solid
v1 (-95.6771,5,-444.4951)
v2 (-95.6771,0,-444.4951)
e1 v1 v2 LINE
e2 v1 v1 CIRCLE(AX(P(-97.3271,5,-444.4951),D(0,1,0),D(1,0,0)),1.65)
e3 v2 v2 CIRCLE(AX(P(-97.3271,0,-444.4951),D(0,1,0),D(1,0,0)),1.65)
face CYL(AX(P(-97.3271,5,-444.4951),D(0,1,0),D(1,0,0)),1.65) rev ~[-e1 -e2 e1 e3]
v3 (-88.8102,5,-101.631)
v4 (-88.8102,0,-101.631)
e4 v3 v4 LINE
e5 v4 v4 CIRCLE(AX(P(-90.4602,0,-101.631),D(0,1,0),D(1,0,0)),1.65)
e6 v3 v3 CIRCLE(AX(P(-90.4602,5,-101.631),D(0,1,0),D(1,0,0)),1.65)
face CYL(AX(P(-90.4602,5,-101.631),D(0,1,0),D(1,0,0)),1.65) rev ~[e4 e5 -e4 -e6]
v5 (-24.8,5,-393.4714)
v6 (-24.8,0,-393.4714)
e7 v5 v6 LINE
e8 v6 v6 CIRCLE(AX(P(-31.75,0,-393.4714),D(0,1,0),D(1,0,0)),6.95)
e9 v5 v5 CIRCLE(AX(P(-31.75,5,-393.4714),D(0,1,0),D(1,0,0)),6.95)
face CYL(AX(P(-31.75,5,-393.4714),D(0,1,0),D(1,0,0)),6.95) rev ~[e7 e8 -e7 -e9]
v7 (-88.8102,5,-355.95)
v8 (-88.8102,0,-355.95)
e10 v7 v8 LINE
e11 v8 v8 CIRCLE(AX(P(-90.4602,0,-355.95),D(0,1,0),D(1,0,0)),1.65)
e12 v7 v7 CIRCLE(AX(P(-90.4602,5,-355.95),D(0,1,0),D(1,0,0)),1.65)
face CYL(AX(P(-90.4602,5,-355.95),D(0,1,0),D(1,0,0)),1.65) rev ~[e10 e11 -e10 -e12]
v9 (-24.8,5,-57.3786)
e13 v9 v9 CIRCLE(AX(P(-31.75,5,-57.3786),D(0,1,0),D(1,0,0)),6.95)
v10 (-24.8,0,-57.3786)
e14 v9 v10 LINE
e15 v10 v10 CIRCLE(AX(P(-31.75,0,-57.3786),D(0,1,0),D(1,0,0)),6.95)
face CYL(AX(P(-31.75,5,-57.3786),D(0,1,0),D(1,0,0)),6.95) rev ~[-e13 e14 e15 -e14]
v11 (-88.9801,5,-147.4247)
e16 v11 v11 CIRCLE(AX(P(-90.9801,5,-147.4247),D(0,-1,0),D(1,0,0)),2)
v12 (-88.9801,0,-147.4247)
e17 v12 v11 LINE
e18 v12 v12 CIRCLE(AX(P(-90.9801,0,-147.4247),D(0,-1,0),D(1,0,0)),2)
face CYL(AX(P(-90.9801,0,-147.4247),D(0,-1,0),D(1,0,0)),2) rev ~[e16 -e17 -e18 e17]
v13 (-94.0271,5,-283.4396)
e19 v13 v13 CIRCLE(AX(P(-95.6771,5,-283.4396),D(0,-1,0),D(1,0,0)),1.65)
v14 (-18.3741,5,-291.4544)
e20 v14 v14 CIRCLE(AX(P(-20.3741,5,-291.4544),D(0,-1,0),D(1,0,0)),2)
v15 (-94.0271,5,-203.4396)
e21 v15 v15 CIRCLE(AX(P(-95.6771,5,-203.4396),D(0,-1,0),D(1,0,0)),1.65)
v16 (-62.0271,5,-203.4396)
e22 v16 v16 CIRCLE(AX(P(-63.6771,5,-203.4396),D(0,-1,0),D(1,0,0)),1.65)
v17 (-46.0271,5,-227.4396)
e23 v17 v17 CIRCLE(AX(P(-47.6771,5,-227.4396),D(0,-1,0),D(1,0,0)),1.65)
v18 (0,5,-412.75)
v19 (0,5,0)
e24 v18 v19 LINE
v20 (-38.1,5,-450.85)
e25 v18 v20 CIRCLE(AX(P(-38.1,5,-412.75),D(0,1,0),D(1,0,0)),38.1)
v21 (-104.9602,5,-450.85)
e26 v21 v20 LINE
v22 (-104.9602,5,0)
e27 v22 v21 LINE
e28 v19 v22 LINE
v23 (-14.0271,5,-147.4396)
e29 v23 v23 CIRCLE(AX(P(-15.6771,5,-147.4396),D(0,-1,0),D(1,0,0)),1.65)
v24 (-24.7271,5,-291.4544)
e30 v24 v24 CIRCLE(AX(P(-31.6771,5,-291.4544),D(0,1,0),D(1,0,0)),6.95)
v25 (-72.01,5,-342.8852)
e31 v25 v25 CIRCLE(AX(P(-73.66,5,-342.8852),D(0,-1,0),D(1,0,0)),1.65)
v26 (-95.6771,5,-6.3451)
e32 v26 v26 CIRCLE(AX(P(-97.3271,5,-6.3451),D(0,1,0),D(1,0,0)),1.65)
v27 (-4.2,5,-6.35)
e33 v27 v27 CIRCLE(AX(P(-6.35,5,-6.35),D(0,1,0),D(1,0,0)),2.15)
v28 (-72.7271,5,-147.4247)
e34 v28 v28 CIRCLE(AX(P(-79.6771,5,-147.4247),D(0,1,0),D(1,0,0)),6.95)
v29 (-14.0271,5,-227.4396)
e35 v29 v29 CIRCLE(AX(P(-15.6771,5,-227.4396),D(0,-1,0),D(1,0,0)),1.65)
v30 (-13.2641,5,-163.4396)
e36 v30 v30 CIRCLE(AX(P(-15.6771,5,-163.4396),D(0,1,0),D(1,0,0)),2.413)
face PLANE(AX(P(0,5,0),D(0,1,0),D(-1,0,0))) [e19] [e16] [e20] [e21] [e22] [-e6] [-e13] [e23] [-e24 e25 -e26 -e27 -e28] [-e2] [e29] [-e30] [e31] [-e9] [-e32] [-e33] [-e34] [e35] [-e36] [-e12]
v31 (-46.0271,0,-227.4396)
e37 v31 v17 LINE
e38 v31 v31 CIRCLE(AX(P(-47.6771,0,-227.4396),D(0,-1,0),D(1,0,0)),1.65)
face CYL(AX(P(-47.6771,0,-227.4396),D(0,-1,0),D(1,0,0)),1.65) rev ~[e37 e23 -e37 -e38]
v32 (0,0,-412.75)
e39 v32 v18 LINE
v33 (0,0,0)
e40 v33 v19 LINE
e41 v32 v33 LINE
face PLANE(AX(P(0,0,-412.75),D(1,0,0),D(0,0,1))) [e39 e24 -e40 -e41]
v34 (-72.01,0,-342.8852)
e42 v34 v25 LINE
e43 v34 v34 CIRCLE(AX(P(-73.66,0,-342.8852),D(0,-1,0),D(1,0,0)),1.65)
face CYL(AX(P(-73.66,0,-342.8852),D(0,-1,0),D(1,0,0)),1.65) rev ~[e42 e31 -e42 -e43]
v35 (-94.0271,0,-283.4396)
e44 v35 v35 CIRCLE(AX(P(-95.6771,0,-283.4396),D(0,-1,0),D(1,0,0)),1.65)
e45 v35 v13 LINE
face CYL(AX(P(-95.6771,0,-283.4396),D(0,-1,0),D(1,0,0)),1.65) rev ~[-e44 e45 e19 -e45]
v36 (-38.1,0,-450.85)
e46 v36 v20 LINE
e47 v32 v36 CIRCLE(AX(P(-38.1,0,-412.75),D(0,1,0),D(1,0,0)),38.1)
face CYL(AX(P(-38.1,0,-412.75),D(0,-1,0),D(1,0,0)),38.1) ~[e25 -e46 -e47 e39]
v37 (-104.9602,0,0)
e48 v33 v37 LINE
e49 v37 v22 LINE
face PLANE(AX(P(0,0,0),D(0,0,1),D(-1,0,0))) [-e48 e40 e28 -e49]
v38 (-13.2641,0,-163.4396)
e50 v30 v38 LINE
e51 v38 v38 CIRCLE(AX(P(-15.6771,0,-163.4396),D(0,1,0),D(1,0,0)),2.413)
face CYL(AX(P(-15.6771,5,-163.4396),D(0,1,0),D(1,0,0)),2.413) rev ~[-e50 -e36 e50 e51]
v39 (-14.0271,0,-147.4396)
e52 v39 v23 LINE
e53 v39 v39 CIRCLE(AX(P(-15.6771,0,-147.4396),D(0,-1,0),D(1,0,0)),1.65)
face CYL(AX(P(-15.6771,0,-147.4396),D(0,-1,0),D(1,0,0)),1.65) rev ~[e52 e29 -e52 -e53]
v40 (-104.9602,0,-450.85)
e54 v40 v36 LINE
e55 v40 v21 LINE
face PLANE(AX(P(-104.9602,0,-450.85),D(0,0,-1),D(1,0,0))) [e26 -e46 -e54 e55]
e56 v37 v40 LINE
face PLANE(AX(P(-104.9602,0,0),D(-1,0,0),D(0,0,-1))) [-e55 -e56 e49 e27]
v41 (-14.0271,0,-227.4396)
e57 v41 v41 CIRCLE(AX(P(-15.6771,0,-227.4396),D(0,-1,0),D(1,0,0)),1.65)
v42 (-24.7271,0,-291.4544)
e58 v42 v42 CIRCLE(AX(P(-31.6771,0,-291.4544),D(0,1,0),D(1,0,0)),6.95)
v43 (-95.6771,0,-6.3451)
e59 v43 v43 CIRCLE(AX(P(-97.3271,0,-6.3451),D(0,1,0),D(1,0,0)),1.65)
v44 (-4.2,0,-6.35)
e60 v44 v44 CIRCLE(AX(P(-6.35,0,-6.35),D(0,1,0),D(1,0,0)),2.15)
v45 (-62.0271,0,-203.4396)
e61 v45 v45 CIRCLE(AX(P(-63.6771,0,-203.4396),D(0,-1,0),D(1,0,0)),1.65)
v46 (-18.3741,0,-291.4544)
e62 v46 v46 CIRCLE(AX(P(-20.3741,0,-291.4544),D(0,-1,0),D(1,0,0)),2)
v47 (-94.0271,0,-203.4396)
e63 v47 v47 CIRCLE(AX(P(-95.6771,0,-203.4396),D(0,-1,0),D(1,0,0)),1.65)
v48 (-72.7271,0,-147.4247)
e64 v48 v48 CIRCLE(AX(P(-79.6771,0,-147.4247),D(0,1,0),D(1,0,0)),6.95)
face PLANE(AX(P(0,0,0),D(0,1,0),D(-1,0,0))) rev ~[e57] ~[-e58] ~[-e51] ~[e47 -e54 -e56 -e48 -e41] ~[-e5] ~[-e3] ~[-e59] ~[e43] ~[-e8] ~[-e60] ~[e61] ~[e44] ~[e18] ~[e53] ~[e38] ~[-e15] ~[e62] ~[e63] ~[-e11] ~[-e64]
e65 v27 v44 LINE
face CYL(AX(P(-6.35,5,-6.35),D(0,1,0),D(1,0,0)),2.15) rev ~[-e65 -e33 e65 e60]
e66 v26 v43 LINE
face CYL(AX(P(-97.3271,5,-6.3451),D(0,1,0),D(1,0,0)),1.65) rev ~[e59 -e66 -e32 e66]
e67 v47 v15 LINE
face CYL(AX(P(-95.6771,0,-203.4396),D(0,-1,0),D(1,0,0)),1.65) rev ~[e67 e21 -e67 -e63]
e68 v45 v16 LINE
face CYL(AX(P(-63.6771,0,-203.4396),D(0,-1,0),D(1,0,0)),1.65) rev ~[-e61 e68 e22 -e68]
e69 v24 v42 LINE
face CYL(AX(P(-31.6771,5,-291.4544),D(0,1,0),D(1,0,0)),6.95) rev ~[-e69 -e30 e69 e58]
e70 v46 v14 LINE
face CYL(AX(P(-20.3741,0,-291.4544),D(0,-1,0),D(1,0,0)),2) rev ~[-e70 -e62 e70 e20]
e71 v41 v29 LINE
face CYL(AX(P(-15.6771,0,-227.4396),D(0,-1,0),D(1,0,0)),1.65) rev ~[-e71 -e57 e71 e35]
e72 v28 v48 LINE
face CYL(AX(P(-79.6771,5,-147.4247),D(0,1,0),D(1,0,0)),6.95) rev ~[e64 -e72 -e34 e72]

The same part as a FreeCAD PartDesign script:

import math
import FreeCAD as App
import Part
import Sketcher

V = App.Vector

doc = App.newDocument("Part")
body = doc.addObject("PartDesign::Body", "Body")

sketch1 = body.newObject("Sketcher::SketchObject", "Sketch")
sketch1.AttachmentSupport = (doc.getObject("XZ_Plane"), [""])
sketch1.MapMode = "FlatFace"
sketch1.addGeometry([
    Part.LineSegment(V(-105, 0, 0), V(0, 0, 0)),
    Part.LineSegment(V(0, 0, 0), V(0, -413, 0)),
    Part.ArcOfCircle(Part.Circle(V(-38, -413, 0), V(0, 0, 1), 38), math.radians(-90), math.radians(0)),
    Part.LineSegment(V(-38, -451, 0), V(-105, -451, 0)),
    Part.LineSegment(V(-105, -451, 0), V(-105, 0, 0)),
], False)
sketch1.addConstraint([
    Sketcher.Constraint("Coincident", 0, 2, 1, 1),
    Sketcher.Constraint("Tangent", 1, 2, 2, 2),
    Sketcher.Constraint("Tangent", 2, 1, 3, 1),
    Sketcher.Constraint("Coincident", 3, 2, 4, 1),
    Sketcher.Constraint("Coincident", 4, 2, 0, 1),
    Sketcher.Constraint("Horizontal", 0),
    Sketcher.Constraint("Vertical", 1),
    Sketcher.Constraint("Horizontal", 3),
    Sketcher.Constraint("Vertical", 4),
    Sketcher.Constraint("Coincident", 0, 2, -1, 1),
    Sketcher.Constraint("Radius", 2, 38.1),
    Sketcher.Constraint("DistanceY", 4, 1, 4, 2, 450.85),
    Sketcher.Constraint("DistanceX", 0, 1, 0, 2, 104.9602),
])
pad1 = body.newObject("PartDesign::Pad", "Pad")
pad1.Profile = sketch1
pad1.Length = 5
pad1.Reversed = True

sketch2 = body.newObject("Sketcher::SketchObject", "Sketch001")
sketch2.AttachmentSupport = (doc.getObject("XZ_Plane"), [""])
sketch2.MapMode = "FlatFace"
sketch2.AttachmentOffset = App.Placement(V(0, 0, -5), App.Rotation())
sketch2.addGeometry([
    Part.Circle(V(-31.8, -57.4, 0), V(0, 0, 1), 7),
    Part.Circle(V(-31.8, -393.5, 0), V(0, 0, 1), 7),
    Part.Circle(V(-6.3, -6.3, 0), V(0, 0, 1), 2.1),
], False)
sketch2.addConstraint([
    Sketcher.Constraint("Equal", 0, 1),
    Sketcher.Constraint("Vertical", 0, 3, 1, 3),
    Sketcher.Constraint("Diameter", 0, 13.9),
    Sketcher.Constraint("Diameter", 2, 4.3),
    Sketcher.Constraint("DistanceX", 0, 3, -1, 1, 31.75),
    Sketcher.Constraint("DistanceX", 2, 3, -1, 1, 6.35),
    Sketcher.Constraint("DistanceY", 2, 3, -1, 1, 6.35),
    Sketcher.Constraint("DistanceY", 0, 3, -1, 1, 57.3786),
    Sketcher.Constraint("DistanceY", 1, 3, 0, 3, 336.0928),
])
pocket1 = body.newObject("PartDesign::Pocket", "Pocket")
pocket1.Profile = sketch2
pocket1.Type = "ThroughAll"
pocket1.Reversed = True

sketch3 = body.newObject("Sketcher::SketchObject", "Sketch002")
sketch3.AttachmentSupport = (doc.getObject("XZ_Plane"), [""])
sketch3.MapMode = "FlatFace"
sketch3.AttachmentOffset = App.Placement(V(0, 0, -5), App.Rotation())
sketch3.addGeometry([
    Part.Circle(V(-97.3, -6.3, 0), V(0, 0, 1), 1.6),
    Part.Circle(V(-97.3, -444.5, 0), V(0, 0, 1), 1.6),
    Part.Circle(V(-79.7, -147.4, 0), V(0, 0, 1), 7),
    Part.Circle(V(-31.7, -291.5, 0), V(0, 0, 1), 7),
    Part.Circle(V(-15.7, -163.4, 0), V(0, 0, 1), 2.4),
    Part.Circle(V(-90.5, -355.9, 0), V(0, 0, 1), 1.6),
    Part.Circle(V(-90.5, -101.6, 0), V(0, 0, 1), 1.6),
], False)
sketch3.addConstraint([
    Sketcher.Constraint("Equal", 0, 1),
    Sketcher.Constraint("Equal", 2, 3),
    Sketcher.Constraint("Equal", 1, 5),
    Sketcher.Constraint("Equal", 5, 6),
    Sketcher.Constraint("Vertical", 0, 3, 1, 3),
    Sketcher.Constraint("Vertical", 5, 3, 6, 3),
    Sketcher.Constraint("Diameter", 0, 3.3),
    Sketcher.Constraint("Diameter", 2, 13.9),
    Sketcher.Constraint("Diameter", 4, 4.826),
    Sketcher.Constraint("DistanceX", 2, 3, 3, 3, 48.0),
    Sketcher.Constraint("DistanceX", 2, 3, 4, 3, 64.0),
    Sketcher.Constraint("DistanceY", 5, 3, -1, 1, 355.95),
    Sketcher.Constraint("DistanceY", 1, 3, 0, 3, 438.15),
    Sketcher.Constraint("DistanceX", 0, 3, 2, 3, 17.65),
    Sketcher.Constraint("DistanceX", 0, 3, -1, 1, 97.327),
    Sketcher.Constraint("DistanceY", 0, 3, -1, 1, 6.345),
    Sketcher.Constraint("DistanceY", 6, 3, -1, 1, 101.631),
    Sketcher.Constraint("DistanceY", 4, 3, 2, 3, 16.015),
    Sketcher.Constraint("DistanceX", 5, 3, 3, 3, 58.783),
    Sketcher.Constraint("DistanceY", 2, 3, -1, 1, 147.4247),
    Sketcher.Constraint("DistanceY", 3, 3, -1, 1, 291.4544),
])
pocket2 = body.newObject("PartDesign::Pocket", "Pocket001")
pocket2.Profile = sketch3
pocket2.Type = "ThroughAll"
pocket2.Reversed = True

sketch4 = body.newObject("Sketcher::SketchObject", "Sketch003")
sketch4.AttachmentSupport = (doc.getObject("XZ_Plane"), [""])
sketch4.MapMode = "FlatFace"
sketch4.addGeometry([
    Part.Circle(V(-73.7, -342.9, 0), V(0, 0, 1), 1.6),
    Part.Circle(V(-95.7, -283.4, 0), V(0, 0, 1), 1.6),
    Part.Circle(V(-47.7, -227.4, 0), V(0, 0, 1), 1.6),
    Part.Circle(V(-15.7, -227.4, 0), V(0, 0, 1), 1.6),
    Part.Circle(V(-95.7, -203.4, 0), V(0, 0, 1), 1.6),
    Part.Circle(V(-63.7, -203.4, 0), V(0, 0, 1), 1.6),
    Part.Circle(V(-15.7, -147.4, 0), V(0, 0, 1), 1.6),
], False)
sketch4.addConstraint([
    Sketcher.Constraint("Equal", 0, 1),
    Sketcher.Constraint("Equal", 1, 2),
    Sketcher.Constraint("Equal", 2, 3),
    Sketcher.Constraint("Equal", 3, 4),
    Sketcher.Constraint("Equal", 4, 5),
    Sketcher.Constraint("Equal", 5, 6),
    Sketcher.Constraint("Horizontal", 2, 3, 3, 3),
    Sketcher.Constraint("Horizontal", 4, 3, 5, 3),
    Sketcher.Constraint("Vertical", 1, 3, 4, 3),
    Sketcher.Constraint("Vertical", 3, 3, 6, 3),
    Sketcher.Constraint("Diameter", 0, 3.3),
    Sketcher.Constraint("DistanceX", 1, 3, 2, 3, 48.0),
    Sketcher.Constraint("DistanceY", 1, 3, 2, 3, 56.0),
    Sketcher.Constraint("DistanceX", 2, 3, 3, 3, 32.0),
    Sketcher.Constraint("DistanceY", 2, 3, 4, 3, 24.0),
    Sketcher.Constraint("DistanceX", 5, 3, 2, 3, 16.0),
    Sketcher.Constraint("DistanceY", 5, 3, 6, 3, 56.0),
    Sketcher.Constraint("DistanceX", 0, 3, -1, 1, 73.66),
    Sketcher.Constraint("DistanceX", 1, 3, -1, 1, 95.677),
    Sketcher.Constraint("DistanceY", 0, 3, -1, 1, 342.8852),
    Sketcher.Constraint("DistanceY", 1, 3, -1, 1, 283.4396),
])
pocket3 = body.newObject("PartDesign::Pocket", "Pocket002")
pocket3.Profile = sketch4
pocket3.Type = "ThroughAll"

sketch5 = body.newObject("Sketcher::SketchObject", "Sketch004")
sketch5.AttachmentSupport = (doc.getObject("XZ_Plane"), [""])
sketch5.MapMode = "FlatFace"
sketch5.addGeometry([
    Part.Circle(V(-91, -147.4, 0), V(0, 0, 1), 2),
    Part.Circle(V(-20.4, -291.5, 0), V(0, 0, 1), 2),
], False)
sketch5.addConstraint([
    Sketcher.Constraint("Equal", 0, 1),
    Sketcher.Constraint("Diameter", 0, 4.0),
    Sketcher.Constraint("DistanceX", 0, 3, -1, 1, 90.98),
    Sketcher.Constraint("DistanceX", 1, 3, -1, 1, 20.374),
    Sketcher.Constraint("DistanceY", 0, 3, -1, 1, 147.4247),
    Sketcher.Constraint("DistanceY", 1, 3, -1, 1, 291.4544),
])
pocket4 = body.newObject("PartDesign::Pocket", "Pocket003")
pocket4.Profile = sketch5
pocket4.Type = "ThroughAll"

doc.recompute()
